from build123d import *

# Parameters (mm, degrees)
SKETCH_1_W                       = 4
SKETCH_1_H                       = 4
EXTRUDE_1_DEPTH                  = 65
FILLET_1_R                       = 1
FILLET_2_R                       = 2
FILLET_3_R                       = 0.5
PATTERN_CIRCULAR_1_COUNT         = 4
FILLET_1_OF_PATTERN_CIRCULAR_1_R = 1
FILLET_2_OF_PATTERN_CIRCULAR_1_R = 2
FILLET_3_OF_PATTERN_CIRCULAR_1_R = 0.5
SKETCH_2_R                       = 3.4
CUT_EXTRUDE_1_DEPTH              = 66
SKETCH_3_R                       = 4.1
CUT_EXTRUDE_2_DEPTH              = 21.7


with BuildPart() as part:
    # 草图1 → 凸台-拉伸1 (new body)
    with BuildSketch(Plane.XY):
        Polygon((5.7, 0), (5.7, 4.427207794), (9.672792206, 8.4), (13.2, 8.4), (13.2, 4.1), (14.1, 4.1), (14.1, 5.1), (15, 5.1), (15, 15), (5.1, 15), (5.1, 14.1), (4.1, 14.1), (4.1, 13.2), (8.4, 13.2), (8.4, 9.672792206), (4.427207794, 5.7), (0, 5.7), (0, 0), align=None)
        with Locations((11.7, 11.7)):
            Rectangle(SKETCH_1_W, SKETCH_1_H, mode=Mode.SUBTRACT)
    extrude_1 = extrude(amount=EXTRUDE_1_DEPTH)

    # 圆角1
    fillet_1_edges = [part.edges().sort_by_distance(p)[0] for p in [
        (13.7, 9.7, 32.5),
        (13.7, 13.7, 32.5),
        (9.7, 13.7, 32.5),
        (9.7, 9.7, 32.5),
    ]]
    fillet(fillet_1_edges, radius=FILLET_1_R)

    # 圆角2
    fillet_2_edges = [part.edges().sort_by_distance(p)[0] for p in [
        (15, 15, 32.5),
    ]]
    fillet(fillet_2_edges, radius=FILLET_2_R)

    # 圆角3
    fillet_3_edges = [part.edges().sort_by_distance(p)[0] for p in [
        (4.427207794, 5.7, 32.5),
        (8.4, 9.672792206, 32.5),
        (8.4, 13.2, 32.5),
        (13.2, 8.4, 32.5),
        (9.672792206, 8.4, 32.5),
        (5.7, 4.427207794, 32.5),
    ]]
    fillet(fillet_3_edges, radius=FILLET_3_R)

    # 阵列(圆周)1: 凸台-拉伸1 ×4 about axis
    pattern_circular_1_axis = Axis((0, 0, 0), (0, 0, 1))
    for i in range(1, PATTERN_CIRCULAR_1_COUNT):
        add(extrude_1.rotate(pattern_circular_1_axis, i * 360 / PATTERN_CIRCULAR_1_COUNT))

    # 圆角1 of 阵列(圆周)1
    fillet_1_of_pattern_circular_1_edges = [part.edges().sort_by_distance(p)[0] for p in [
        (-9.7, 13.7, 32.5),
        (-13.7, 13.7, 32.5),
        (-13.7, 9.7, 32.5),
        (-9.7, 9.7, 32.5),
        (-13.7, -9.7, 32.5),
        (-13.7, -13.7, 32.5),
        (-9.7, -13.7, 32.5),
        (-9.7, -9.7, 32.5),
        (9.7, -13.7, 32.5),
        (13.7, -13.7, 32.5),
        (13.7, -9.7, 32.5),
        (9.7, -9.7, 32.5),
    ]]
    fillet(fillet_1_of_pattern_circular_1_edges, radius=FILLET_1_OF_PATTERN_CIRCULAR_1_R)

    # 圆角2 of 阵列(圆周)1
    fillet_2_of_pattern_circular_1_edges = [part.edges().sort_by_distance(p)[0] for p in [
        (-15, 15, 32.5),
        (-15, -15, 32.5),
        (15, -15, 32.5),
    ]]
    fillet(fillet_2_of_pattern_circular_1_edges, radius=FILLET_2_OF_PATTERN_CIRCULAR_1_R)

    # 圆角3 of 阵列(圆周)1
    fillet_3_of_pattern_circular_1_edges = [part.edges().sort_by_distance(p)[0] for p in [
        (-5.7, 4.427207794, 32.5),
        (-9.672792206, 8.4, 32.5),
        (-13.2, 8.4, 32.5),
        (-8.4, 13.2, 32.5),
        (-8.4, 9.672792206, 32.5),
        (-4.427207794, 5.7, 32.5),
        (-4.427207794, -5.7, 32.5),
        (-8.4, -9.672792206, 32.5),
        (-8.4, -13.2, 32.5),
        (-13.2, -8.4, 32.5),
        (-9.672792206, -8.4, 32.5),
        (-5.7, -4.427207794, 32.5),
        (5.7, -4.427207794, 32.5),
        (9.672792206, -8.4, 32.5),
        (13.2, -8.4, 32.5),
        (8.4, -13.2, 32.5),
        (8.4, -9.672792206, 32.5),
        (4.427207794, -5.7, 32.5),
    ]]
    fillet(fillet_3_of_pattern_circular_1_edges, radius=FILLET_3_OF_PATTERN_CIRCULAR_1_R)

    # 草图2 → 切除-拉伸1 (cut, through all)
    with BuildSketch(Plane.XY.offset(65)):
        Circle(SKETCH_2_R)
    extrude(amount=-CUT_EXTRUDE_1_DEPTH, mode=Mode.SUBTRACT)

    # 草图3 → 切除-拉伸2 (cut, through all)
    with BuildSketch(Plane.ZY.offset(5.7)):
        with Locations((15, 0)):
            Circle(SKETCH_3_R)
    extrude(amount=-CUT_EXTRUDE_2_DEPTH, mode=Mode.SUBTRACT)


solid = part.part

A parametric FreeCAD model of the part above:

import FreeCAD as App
import Part
import Sketcher
from FreeCAD import Vector
Q = App.Units.Quantity


def edges_at(feature, points):
    """Names of the edges that pass closest to the given points."""
    edges = feature.Shape.Edges
    near = lambda p: min(range(len(edges)), key=lambda i: edges[i].distToShape(Part.Vertex(*p))[0])
    return sorted({f"Edge{near(p) + 1}" for p in points})

doc = App.newDocument("Part")
body = doc.addObject("PartDesign::Body", "Body")

sketch1 = body.newObject("Sketcher::SketchObject", "Sketch")
sketch1.AttachmentSupport = (doc.getObject("XY_Plane"), [""])
sketch1.MapMode = "FlatFace"
sketch1.addGeometry(Part.LineSegment(Vector(5.7, 0, 0), Vector(5.7, 4.427208, 0)), False)
sketch1.addGeometry(Part.LineSegment(Vector(5.7, 4.427208, 0), Vector(9.672792, 8.4, 0)), False)
sketch1.addGeometry(Part.LineSegment(Vector(9.672792, 8.4, 0), Vector(13.2, 8.4, 0)), False)
sketch1.addGeometry(Part.LineSegment(Vector(13.2, 8.4, 0), Vector(13.2, 4.1, 0)), False)
sketch1.addGeometry(Part.LineSegment(Vector(13.2, 4.1, 0), Vector(14.1, 4.1, 0)), False)
sketch1.addGeometry(Part.LineSegment(Vector(14.1, 4.1, 0), Vector(14.1, 5.1, 0)), False)
sketch1.addGeometry(Part.LineSegment(Vector(14.1, 5.1, 0), Vector(15, 5.1, 0)), False)
sketch1.addGeometry(Part.LineSegment(Vector(15, 5.1, 0), Vector(15, 15, 0)), False)
sketch1.addGeometry(Part.LineSegment(Vector(15, 15, 0), Vector(5.1, 15, 0)), False)
sketch1.addGeometry(Part.LineSegment(Vector(5.1, 15, 0), Vector(5.1, 14.1, 0)), False)
sketch1.addGeometry(Part.LineSegment(Vector(5.1, 14.1, 0), Vector(4.1, 14.1, 0)), False)
sketch1.addGeometry(Part.LineSegment(Vector(4.1, 14.1, 0), Vector(4.1, 13.2, 0)), False)
sketch1.addGeometry(Part.LineSegment(Vector(4.1, 13.2, 0), Vector(8.4, 13.2, 0)), False)
sketch1.addGeometry(Part.LineSegment(Vector(8.4, 13.2, 0), Vector(8.4, 9.672792, 0)), False)
sketch1.addGeometry(Part.LineSegment(Vector(8.4, 9.672792, 0), Vector(4.427208, 5.7, 0)), False)
sketch1.addGeometry(Part.LineSegment(Vector(4.427208, 5.7, 0), Vector(0, 5.7, 0)), False)
sketch1.addGeometry(Part.LineSegment(Vector(0, 5.7, 0), Vector(0, 0, 0)), False)
sketch1.addGeometry(Part.LineSegment(Vector(0, 0, 0), Vector(5.7, 0, 0)), False)
sketch1.addGeometry(Part.LineSegment(Vector(13.7, 9.7, 0), Vector(9.7, 9.7, 0)), False)
sketch1.addGeometry(Part.LineSegment(Vector(9.7, 9.7, 0), Vector(9.7, 13.7, 0)), False)
sketch1.addGeometry(Part.LineSegment(Vector(9.7, 13.7, 0), Vector(13.7, 13.7, 0)), False)
sketch1.addGeometry(Part.LineSegment(Vector(13.7, 13.7, 0), Vector(13.7, 9.7, 0)), False)
sketch1.addConstraint(Sketcher.Constraint("Coincident", 0, 2, 1, 1))
sketch1.addConstraint(Sketcher.Constraint("Coincident", 1, 2, 2, 1))
sketch1.addConstraint(Sketcher.Constraint("Coincident", 2, 2, 3, 1))
sketch1.addConstraint(Sketcher.Constraint("Coincident", 3, 2, 4, 1))
sketch1.addConstraint(Sketcher.Constraint("Coincident", 4, 2, 5, 1))
sketch1.addConstraint(Sketcher.Constraint("Coincident", 5, 2, 6, 1))
sketch1.addConstraint(Sketcher.Constraint("Coincident", 6, 2, 7, 1))
sketch1.addConstraint(Sketcher.Constraint("Coincident", 7, 2, 8, 1))
sketch1.addConstraint(Sketcher.Constraint("Coincident", 8, 2, 9, 1))
sketch1.addConstraint(Sketcher.Constraint("Coincident", 9, 2, 10, 1))
sketch1.addConstraint(Sketcher.Constraint("Coincident", 10, 2, 11, 1))
sketch1.addConstraint(Sketcher.Constraint("Coincident", 11, 2, 12, 1))
sketch1.addConstraint(Sketcher.Constraint("Coincident", 12, 2, 13, 1))
sketch1.addConstraint(Sketcher.Constraint("Coincident", 13, 2, 14, 1))
sketch1.addConstraint(Sketcher.Constraint("Coincident", 14, 2, 15, 1))
sketch1.addConstraint(Sketcher.Constraint("Coincident", 15, 2, 16, 1))
sketch1.addConstraint(Sketcher.Constraint("Coincident", 16, 2, 17, 1))
sketch1.addConstraint(Sketcher.Constraint("Coincident", 17, 2, 0, 1))
sketch1.addConstraint(Sketcher.Constraint("Coincident", 18, 2, 19, 1))
sketch1.addConstraint(Sketcher.Constraint("Coincident", 19, 2, 20, 1))
sketch1.addConstraint(Sketcher.Constraint("Coincident", 20, 2, 21, 1))
sketch1.addConstraint(Sketcher.Constraint("Coincident", 21, 2, 18, 1))
sketch1.addConstraint(Sketcher.Constraint("Vertical", 0))
sketch1.addConstraint(Sketcher.Constraint("Horizontal", 2))
sketch1.addConstraint(Sketcher.Constraint("Vertical", 3))
sketch1.addConstraint(Sketcher.Constraint("Horizontal", 4))
sketch1.addConstraint(Sketcher.Constraint("Vertical", 5))
sketch1.addConstraint(Sketcher.Constraint("Horizontal", 6))
sketch1.addConstraint(Sketcher.Constraint("Vertical", 7))
sketch1.addConstraint(Sketcher.Constraint("Horizontal", 8))
sketch1.addConstraint(Sketcher.Constraint("Vertical", 9))
sketch1.addConstraint(Sketcher.Constraint("Horizontal", 10))
sketch1.addConstraint(Sketcher.Constraint("Vertical", 11))
sketch1.addConstraint(Sketcher.Constraint("Horizontal", 12))
sketch1.addConstraint(Sketcher.Constraint("Vertical", 13))
sketch1.addConstraint(Sketcher.Constraint("Horizontal", 15))
sketch1.addConstraint(Sketcher.Constraint("Vertical", 16))
sketch1.addConstraint(Sketcher.Constraint("Horizontal", 17))
sketch1.addConstraint(Sketcher.Constraint("Horizontal", 18))
sketch1.addConstraint(Sketcher.Constraint("Vertical", 19))
sketch1.addConstraint(Sketcher.Constraint("Horizontal", 20))
sketch1.addConstraint(Sketcher.Constraint("Vertical", 21))
sketch1.addConstraint(Sketcher.Constraint("Coincident", 16, 2, -1, 1))
sketch1.addConstraint(Sketcher.Constraint("Parallel", 1, 14))
sketch1.addConstraint(Sketcher.Constraint("Equal", 4, 6))
sketch1.addConstraint(Sketcher.Constraint("Equal", 15, 0))
sketch1.addConstraint(Sketcher.Constraint("Equal", 12, 3))
sketch1.addConstraint(Sketcher.Constraint("Equal", 10, 5))
sketch1.addConstraint(Sketcher.Constraint("Equal", 8, 7))
sketch1.addConstraint(Sketcher.Constraint("Equal", 6, 9))
sketch1.addConstraint(Sketcher.Constraint("Equal", 9, 11))
sketch1.addConstraint(Sketcher.Constraint("Equal", 2, 13))
sketch1.addConstraint(Sketcher.Constraint("Equal", 17, 16))
sketch1.addConstraint(Sketcher.Constraint("Equal", 20, 19))
sketch1.addConstraint(Sketcher.Constraint("DistanceX", 10, 2, 10, 1, Q("1 mm")))
sketch1.addConstraint(Sketcher.Constraint("DistanceX", 18, 2, 18, 1, Q("4 mm")))
sketch1.addConstraint(Sketcher.Constraint("Angle", 1, Q("45 deg")))
sketch1.addConstraint(Sketcher.Constraint("DistanceX", 4, 1, 4, 2, Q("0.9 mm")))
sketch1.addConstraint(Sketcher.Constraint("DistanceX", 8, 2, 8, 1, Q("9.9 mm")))
sketch1.addConstraint(Sketcher.Constraint("DistanceX", 12, 1, 12, 2, Q("4.3 mm")))
sketch1.addConstraint(Sketcher.Constraint("DistanceX", 17, 1, 17, 2, Q("5.7 mm")))
sketch1.addConstraint(Sketcher.Constraint("DistanceX", -1, 1, 6, 2, Q("15 mm")))
sketch1.addConstraint(Sketcher.Constraint("DistanceX", -1, 1, 18, 2, Q("9.7 mm")))
sketch1.addConstraint(Sketcher.Constraint("DistanceY", -1, 1, 18, 2, Q("9.7 mm")))
sketch1.addConstraint(Sketcher.Constraint("DistanceX", 2, 1, 2, 2, Q("3.527208 mm")))
pad1 = body.newObject("PartDesign::Pad", "Pad")
pad1.Profile = sketch1
pad1.Length = 65
doc.recompute()

fillet = body.newObject("PartDesign::Fillet", "Fillet")
fillet.Base = (pad1, edges_at(pad1, [
    (13.7, 9.7, 32.5),
    (13.7, 13.7, 32.5),
    (9.7, 13.7, 32.5),
    (9.7, 9.7, 32.5),
]))
fillet.Radius = 1
doc.recompute()

fillet2 = body.newObject("PartDesign::Fillet", "Fillet001")
fillet2.Base = (fillet, edges_at(fillet, [(15, 15, 32.5)]))
fillet2.Radius = 2
doc.recompute()

fillet3 = body.newObject("PartDesign::Fillet", "Fillet002")
fillet3.Base = (fillet2, edges_at(fillet2, [
    (4.427, 5.7, 32.5),
    (8.4, 9.673, 32.5),
    (8.4, 13.2, 32.5),
    (13.2, 8.4, 32.5),
    (9.673, 8.4, 32.5),
    (5.7, 4.427, 32.5),
]))
fillet3.Radius = 0.5
doc.recompute()

polarpattern = body.newObject("PartDesign::PolarPattern", "PolarPattern")
polarpattern.Originals = [pad1]
polarpattern.Axis = (doc.getObject("Z_Axis"), [""])
polarpattern.Angle = 360
polarpattern.Occurrences = 4
body.Tip = polarpattern
doc.recompute()

fillet4 = body.newObject("PartDesign::Fillet", "Fillet003")
fillet4.Base = (polarpattern, edges_at(polarpattern, [
    (-9.7, 13.7, 32.5),
    (-13.7, 13.7, 32.5),
    (-13.7, 9.7, 32.5),
    (-9.7, 9.7, 32.5),
    (-13.7, -9.7, 32.5),
    (-13.7, -13.7, 32.5),
    (-9.7, -13.7, 32.5),
    (-9.7, -9.7, 32.5),
    (9.7, -13.7, 32.5),
    (13.7, -13.7, 32.5),
    (13.7, -9.7, 32.5),
    (9.7, -9.7, 32.5),
]))
fillet4.Radius = 1
doc.recompute()

fillet5 = body.newObject("PartDesign::Fillet", "Fillet004")
fillet5.Base = (fillet4, edges_at(fillet4, [(-15, 15, 32.5), (-15, -15, 32.5), (15, -15, 32.5)]))
fillet5.Radius = 2
doc.recompute()

fillet6 = body.newObject("PartDesign::Fillet", "Fillet005")
fillet6.Base = (fillet5, edges_at(fillet5, [
    (-5.7, 4.427, 32.5),
    (-9.673, 8.4, 32.5),
    (-13.2, 8.4, 32.5),
    (-8.4, 13.2, 32.5),
    (-8.4, 9.673, 32.5),
    (-4.427, 5.7, 32.5),
    (-4.427, -5.7, 32.5),
    (-8.4, -9.673, 32.5),
    (-8.4, -13.2, 32.5),
    (-13.2, -8.4, 32.5),
    (-9.673, -8.4, 32.5),
    (-5.7, -4.427, 32.5),
    (5.7, -4.427, 32.5),
    (9.673, -8.4, 32.5),
    (13.2, -8.4, 32.5),
    (8.4, -13.2, 32.5),
    (8.4, -9.673, 32.5),
    (4.427, -5.7, 32.5),
]))
fillet6.Radius = 0.5

sketch2 = body.newObject("Sketcher::SketchObject", "Sketch001")
sketch2.AttachmentSupport = (doc.getObject("XY_Plane"), [""])
sketch2.MapMode = "FlatFace"
sketch2.AttachmentOffset = App.Placement(Vector(0, 0, 65), App.Rotation())
sketch2.addGeometry(Part.Circle(Vector(0, 0, 0), Vector(0, 0, 1), 3.4), False)
sketch2.addConstraint(Sketcher.Constraint("Coincident", 0, 3, -1, 1))
sketch2.addConstraint(Sketcher.Constraint("Diameter", 0, Q("6.8 mm")))
pocket1 = body.newObject("PartDesign::Pocket", "Pocket")
pocket1.Profile = sketch2
pocket1.Type = "ThroughAll"

sketch3 = body.newObject("Sketcher::SketchObject", "Sketch002")
sketch3.AttachmentSupport = (doc.getObject("YZ_Plane"), [""])
sketch3.MapMode = "FlatFace"
sketch3.AttachmentOffset = App.Placement(Vector(0, 0, -5.7), App.Rotation())
sketch3.addGeometry(Part.Circle(Vector(0, 15, 0), Vector(0, 0, 1), 4.1), False)
sketch3.addConstraint(Sketcher.Constraint("PointOnObject", 0, 3, -2))
sketch3.addConstraint(Sketcher.Constraint("Diameter", 0, Q("8.2 mm")))
sketch3.addConstraint(Sketcher.Constraint("DistanceY", -1, 1, 0, 3, Q("15 mm")))
pocket2 = body.newObject("PartDesign::Pocket", "Pocket001")
pocket2.Profile = sketch3
pocket2.Type = "ThroughAll"
pocket2.Reversed = True

doc.recompute()
